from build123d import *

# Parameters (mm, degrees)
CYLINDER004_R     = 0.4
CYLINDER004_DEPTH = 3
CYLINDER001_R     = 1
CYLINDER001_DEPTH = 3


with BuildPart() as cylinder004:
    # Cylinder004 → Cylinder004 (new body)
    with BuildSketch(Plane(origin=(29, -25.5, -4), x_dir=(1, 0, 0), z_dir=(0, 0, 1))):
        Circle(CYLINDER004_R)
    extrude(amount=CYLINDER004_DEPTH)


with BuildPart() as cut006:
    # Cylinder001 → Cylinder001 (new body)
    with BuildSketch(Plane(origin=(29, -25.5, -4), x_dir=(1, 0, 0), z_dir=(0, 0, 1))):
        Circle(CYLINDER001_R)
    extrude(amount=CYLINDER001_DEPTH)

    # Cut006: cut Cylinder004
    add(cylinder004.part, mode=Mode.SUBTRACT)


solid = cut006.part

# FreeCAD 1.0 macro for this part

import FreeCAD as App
import Part
import Sketcher

V = App.Vector
Q = App.Units.Quantity

doc = App.newDocument("Part")
body = doc.addObject("PartDesign::Body", "Body")

# Sketch on XY plane
sketch1 = body.newObject("Sketcher::SketchObject", "Sketch")
sketch1.AttachmentSupport = (doc.getObject("XY_Plane"), [""])
sketch1.MapMode = "FlatFace"
sketch1.AttachmentOffset = App.Placement(V(0, 0, -4), App.Rotation())
sketch1.addGeometry(Part.Circle(V(29, -25.5, 0), V(0, 0, 1), 0.4), False)
sketch1.addConstraint([
    Sketcher.Constraint("Diameter", 0, Q("0.8 mm")),
    Sketcher.Constraint("DistanceX", -1, 1, 0, 3, Q("29 mm")),
    Sketcher.Constraint("DistanceY", 0, 3, -1, 1, Q("25.5 mm")),
])
pad1 = body.newObject("PartDesign::Pad", "Pad")
pad1.Profile = sketch1
pad1.Length = 3
body2 = doc.addObject("PartDesign::Body", "Body001")

# Sketch on XY plane
sketch2 = body2.newObject("Sketcher::SketchObject", "Sketch001")
sketch2.AttachmentSupport = (doc.getObject("XY_Plane001"), [""])
sketch2.MapMode = "FlatFace"
sketch2.AttachmentOffset = App.Placement(V(0, 0, -4), App.Rotation())
sketch2.addGeometry(Part.Circle(V(29, -25.5, 0), V(0, 0, 1), 1), False)
sketch2.addConstraint([
    Sketcher.Constraint("Diameter", 0, Q("2 mm")),
    Sketcher.Constraint("DistanceX", -1, 1, 0, 3, Q("29 mm")),
    Sketcher.Constraint("DistanceY", 0, 3, -1, 1, Q("25.5 mm")),
])
pad2 = body2.newObject("PartDesign::Pad", "Pad001")
pad2.Profile = sketch2
pad2.Length = 3
doc.recompute()

boolean = body2.newObject("PartDesign::Boolean", "Boolean")
boolean.Type = "Cut"
boolean.addObjects([body])

doc.recompute()
